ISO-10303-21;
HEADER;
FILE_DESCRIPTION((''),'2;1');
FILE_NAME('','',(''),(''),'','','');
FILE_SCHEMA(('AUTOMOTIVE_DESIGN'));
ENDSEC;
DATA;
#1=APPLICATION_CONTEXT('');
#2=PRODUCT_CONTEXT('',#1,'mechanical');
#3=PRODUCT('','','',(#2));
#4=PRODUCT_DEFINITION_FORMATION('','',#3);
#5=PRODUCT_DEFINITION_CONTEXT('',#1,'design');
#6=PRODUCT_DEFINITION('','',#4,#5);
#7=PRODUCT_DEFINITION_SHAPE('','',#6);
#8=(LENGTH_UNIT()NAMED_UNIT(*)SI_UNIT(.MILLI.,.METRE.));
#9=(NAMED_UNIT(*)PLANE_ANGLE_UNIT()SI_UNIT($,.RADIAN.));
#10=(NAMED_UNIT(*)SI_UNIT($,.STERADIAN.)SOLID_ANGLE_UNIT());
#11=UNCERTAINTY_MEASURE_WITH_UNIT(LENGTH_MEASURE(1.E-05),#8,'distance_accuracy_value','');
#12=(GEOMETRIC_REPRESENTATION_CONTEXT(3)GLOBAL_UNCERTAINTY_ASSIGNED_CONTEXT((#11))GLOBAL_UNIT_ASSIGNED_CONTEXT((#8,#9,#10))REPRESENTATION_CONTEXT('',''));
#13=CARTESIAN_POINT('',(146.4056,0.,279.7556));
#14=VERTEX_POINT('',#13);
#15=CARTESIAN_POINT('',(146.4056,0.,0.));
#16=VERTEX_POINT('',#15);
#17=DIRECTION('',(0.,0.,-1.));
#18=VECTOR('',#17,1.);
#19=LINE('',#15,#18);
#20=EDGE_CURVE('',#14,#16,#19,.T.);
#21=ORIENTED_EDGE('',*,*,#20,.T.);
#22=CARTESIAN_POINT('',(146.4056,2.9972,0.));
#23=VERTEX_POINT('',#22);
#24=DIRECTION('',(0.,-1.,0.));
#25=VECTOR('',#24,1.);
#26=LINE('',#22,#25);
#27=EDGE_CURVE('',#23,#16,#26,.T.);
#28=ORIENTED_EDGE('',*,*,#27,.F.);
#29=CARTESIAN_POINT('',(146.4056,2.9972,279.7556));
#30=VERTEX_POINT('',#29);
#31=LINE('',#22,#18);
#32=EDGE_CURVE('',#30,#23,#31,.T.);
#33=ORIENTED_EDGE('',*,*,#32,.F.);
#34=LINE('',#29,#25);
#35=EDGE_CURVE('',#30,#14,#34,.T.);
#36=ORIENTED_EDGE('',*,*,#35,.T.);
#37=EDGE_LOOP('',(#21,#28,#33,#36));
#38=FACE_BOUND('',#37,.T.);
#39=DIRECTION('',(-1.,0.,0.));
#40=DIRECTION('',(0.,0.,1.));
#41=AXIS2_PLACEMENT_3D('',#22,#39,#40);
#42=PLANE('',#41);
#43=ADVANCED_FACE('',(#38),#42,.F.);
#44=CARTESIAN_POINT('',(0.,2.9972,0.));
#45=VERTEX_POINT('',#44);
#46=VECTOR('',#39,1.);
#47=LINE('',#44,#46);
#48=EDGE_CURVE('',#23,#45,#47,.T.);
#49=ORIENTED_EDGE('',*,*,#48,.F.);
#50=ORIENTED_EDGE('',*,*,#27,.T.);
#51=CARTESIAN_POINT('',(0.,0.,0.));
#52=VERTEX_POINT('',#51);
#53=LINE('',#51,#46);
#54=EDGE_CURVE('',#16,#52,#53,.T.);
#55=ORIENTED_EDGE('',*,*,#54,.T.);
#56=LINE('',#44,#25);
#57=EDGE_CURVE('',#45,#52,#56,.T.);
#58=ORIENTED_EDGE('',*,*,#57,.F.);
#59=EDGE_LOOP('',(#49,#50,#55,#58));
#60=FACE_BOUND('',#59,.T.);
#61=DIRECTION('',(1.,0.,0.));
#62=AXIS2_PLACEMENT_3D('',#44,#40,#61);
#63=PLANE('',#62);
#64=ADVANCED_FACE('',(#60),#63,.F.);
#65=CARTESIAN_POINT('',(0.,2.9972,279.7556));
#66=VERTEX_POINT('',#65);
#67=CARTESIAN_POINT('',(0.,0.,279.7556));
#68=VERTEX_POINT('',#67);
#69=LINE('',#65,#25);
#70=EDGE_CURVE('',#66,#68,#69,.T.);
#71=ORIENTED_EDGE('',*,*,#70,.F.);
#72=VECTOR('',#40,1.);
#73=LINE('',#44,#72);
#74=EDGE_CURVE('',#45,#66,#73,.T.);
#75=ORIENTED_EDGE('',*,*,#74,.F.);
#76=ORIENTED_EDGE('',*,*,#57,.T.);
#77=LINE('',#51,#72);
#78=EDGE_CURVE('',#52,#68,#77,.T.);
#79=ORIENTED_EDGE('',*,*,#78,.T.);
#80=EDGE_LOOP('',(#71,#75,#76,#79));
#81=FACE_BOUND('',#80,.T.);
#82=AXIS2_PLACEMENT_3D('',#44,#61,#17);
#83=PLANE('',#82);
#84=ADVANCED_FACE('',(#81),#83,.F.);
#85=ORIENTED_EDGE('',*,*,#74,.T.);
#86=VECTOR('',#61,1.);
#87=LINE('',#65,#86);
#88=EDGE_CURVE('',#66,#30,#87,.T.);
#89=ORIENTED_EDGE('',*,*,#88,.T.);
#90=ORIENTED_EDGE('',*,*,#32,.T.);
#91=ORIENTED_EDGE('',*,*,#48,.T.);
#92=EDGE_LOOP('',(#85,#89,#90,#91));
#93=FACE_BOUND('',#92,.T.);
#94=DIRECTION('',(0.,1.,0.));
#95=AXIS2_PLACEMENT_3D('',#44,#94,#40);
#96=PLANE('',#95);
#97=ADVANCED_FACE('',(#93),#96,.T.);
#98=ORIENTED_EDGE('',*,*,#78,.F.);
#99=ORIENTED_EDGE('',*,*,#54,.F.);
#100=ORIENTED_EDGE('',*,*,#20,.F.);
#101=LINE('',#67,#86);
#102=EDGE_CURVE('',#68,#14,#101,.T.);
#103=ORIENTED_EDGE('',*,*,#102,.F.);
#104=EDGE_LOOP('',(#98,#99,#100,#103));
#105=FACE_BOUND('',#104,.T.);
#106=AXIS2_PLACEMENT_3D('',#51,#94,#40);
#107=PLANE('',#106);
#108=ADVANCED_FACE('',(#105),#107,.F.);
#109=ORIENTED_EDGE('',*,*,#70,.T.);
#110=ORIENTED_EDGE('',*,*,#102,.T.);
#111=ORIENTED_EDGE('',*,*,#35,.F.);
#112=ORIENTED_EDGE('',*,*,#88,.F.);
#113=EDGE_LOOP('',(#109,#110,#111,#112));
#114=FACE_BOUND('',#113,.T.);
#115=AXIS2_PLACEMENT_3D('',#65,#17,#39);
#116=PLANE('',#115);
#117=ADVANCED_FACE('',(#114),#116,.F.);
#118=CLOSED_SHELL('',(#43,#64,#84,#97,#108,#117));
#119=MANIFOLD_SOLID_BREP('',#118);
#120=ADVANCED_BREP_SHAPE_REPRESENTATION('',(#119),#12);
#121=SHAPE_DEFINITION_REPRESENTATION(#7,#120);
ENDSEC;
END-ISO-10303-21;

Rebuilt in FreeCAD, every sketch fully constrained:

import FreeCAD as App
import Part
import Sketcher
from FreeCAD import Vector
Q = App.Units.Quantity


def add_polygon(sketch, points):
    """Adds a closed chain of lines whose ends are joined by coincident constraints."""
    first, n = sketch.GeometryCount, len(points)
    for a, b in zip(points, points[1:] + points[:1]):
        sketch.addGeometry(Part.LineSegment(App.Vector(*a, 0), App.Vector(*b, 0)), False)
    for i in range(n):
        sketch.addConstraint(Sketcher.Constraint("Coincident", first + i, 2, first + (i + 1) % n, 1))

doc = App.newDocument("Part")
params = doc.addObject("Spreadsheet::Sheet", "Params")
for row, (alias, value) in enumerate([
    ("sketch1_width", "5.764 in"),
    ("sketch1_height", "11.014 in"),
    ("pad1_length", "0.118 in"),
], start=1):
    params.set(f"A{row}", alias)
    params.set(f"B{row}", "=" + value)
    params.setAlias(f"B{row}", alias)

body = doc.addObject("PartDesign::Body", "Body")

sketch1 = body.newObject("Sketcher::SketchObject", "Sketch")
sketch1.AttachmentSupport = (doc.getObject("XZ_Plane"), [""])
sketch1.MapMode = "FlatFace"
add_polygon(sketch1, [(0, 0), (0, 280), (146, 280), (146, 0)])
sketch1.addConstraint(Sketcher.Constraint("Vertical", 0))
sketch1.addConstraint(Sketcher.Constraint("Horizontal", 1))
sketch1.addConstraint(Sketcher.Constraint("Vertical", 2))
sketch1.addConstraint(Sketcher.Constraint("Horizontal", 3))
sketch1.addConstraint(Sketcher.Constraint("Coincident", 3, 2, -1, 1))
sketch1.addConstraint(Sketcher.Constraint("DistanceX", 1, 1, 1, 2, Q("5.764 in")))
sketch1.addConstraint(Sketcher.Constraint("DistanceY", 0, 1, 0, 2, Q("11.014 in")))
sketch1.setExpression("Constraints[9]", "Params.sketch1_width")
sketch1.setExpression("Constraints[10]", "Params.sketch1_height")
pad1 = body.newObject("PartDesign::Pad", "Pad")
pad1.Profile = sketch1
pad1.setExpression("Length", "Params.pad1_length")
pad1.Reversed = True

doc.recompute()
